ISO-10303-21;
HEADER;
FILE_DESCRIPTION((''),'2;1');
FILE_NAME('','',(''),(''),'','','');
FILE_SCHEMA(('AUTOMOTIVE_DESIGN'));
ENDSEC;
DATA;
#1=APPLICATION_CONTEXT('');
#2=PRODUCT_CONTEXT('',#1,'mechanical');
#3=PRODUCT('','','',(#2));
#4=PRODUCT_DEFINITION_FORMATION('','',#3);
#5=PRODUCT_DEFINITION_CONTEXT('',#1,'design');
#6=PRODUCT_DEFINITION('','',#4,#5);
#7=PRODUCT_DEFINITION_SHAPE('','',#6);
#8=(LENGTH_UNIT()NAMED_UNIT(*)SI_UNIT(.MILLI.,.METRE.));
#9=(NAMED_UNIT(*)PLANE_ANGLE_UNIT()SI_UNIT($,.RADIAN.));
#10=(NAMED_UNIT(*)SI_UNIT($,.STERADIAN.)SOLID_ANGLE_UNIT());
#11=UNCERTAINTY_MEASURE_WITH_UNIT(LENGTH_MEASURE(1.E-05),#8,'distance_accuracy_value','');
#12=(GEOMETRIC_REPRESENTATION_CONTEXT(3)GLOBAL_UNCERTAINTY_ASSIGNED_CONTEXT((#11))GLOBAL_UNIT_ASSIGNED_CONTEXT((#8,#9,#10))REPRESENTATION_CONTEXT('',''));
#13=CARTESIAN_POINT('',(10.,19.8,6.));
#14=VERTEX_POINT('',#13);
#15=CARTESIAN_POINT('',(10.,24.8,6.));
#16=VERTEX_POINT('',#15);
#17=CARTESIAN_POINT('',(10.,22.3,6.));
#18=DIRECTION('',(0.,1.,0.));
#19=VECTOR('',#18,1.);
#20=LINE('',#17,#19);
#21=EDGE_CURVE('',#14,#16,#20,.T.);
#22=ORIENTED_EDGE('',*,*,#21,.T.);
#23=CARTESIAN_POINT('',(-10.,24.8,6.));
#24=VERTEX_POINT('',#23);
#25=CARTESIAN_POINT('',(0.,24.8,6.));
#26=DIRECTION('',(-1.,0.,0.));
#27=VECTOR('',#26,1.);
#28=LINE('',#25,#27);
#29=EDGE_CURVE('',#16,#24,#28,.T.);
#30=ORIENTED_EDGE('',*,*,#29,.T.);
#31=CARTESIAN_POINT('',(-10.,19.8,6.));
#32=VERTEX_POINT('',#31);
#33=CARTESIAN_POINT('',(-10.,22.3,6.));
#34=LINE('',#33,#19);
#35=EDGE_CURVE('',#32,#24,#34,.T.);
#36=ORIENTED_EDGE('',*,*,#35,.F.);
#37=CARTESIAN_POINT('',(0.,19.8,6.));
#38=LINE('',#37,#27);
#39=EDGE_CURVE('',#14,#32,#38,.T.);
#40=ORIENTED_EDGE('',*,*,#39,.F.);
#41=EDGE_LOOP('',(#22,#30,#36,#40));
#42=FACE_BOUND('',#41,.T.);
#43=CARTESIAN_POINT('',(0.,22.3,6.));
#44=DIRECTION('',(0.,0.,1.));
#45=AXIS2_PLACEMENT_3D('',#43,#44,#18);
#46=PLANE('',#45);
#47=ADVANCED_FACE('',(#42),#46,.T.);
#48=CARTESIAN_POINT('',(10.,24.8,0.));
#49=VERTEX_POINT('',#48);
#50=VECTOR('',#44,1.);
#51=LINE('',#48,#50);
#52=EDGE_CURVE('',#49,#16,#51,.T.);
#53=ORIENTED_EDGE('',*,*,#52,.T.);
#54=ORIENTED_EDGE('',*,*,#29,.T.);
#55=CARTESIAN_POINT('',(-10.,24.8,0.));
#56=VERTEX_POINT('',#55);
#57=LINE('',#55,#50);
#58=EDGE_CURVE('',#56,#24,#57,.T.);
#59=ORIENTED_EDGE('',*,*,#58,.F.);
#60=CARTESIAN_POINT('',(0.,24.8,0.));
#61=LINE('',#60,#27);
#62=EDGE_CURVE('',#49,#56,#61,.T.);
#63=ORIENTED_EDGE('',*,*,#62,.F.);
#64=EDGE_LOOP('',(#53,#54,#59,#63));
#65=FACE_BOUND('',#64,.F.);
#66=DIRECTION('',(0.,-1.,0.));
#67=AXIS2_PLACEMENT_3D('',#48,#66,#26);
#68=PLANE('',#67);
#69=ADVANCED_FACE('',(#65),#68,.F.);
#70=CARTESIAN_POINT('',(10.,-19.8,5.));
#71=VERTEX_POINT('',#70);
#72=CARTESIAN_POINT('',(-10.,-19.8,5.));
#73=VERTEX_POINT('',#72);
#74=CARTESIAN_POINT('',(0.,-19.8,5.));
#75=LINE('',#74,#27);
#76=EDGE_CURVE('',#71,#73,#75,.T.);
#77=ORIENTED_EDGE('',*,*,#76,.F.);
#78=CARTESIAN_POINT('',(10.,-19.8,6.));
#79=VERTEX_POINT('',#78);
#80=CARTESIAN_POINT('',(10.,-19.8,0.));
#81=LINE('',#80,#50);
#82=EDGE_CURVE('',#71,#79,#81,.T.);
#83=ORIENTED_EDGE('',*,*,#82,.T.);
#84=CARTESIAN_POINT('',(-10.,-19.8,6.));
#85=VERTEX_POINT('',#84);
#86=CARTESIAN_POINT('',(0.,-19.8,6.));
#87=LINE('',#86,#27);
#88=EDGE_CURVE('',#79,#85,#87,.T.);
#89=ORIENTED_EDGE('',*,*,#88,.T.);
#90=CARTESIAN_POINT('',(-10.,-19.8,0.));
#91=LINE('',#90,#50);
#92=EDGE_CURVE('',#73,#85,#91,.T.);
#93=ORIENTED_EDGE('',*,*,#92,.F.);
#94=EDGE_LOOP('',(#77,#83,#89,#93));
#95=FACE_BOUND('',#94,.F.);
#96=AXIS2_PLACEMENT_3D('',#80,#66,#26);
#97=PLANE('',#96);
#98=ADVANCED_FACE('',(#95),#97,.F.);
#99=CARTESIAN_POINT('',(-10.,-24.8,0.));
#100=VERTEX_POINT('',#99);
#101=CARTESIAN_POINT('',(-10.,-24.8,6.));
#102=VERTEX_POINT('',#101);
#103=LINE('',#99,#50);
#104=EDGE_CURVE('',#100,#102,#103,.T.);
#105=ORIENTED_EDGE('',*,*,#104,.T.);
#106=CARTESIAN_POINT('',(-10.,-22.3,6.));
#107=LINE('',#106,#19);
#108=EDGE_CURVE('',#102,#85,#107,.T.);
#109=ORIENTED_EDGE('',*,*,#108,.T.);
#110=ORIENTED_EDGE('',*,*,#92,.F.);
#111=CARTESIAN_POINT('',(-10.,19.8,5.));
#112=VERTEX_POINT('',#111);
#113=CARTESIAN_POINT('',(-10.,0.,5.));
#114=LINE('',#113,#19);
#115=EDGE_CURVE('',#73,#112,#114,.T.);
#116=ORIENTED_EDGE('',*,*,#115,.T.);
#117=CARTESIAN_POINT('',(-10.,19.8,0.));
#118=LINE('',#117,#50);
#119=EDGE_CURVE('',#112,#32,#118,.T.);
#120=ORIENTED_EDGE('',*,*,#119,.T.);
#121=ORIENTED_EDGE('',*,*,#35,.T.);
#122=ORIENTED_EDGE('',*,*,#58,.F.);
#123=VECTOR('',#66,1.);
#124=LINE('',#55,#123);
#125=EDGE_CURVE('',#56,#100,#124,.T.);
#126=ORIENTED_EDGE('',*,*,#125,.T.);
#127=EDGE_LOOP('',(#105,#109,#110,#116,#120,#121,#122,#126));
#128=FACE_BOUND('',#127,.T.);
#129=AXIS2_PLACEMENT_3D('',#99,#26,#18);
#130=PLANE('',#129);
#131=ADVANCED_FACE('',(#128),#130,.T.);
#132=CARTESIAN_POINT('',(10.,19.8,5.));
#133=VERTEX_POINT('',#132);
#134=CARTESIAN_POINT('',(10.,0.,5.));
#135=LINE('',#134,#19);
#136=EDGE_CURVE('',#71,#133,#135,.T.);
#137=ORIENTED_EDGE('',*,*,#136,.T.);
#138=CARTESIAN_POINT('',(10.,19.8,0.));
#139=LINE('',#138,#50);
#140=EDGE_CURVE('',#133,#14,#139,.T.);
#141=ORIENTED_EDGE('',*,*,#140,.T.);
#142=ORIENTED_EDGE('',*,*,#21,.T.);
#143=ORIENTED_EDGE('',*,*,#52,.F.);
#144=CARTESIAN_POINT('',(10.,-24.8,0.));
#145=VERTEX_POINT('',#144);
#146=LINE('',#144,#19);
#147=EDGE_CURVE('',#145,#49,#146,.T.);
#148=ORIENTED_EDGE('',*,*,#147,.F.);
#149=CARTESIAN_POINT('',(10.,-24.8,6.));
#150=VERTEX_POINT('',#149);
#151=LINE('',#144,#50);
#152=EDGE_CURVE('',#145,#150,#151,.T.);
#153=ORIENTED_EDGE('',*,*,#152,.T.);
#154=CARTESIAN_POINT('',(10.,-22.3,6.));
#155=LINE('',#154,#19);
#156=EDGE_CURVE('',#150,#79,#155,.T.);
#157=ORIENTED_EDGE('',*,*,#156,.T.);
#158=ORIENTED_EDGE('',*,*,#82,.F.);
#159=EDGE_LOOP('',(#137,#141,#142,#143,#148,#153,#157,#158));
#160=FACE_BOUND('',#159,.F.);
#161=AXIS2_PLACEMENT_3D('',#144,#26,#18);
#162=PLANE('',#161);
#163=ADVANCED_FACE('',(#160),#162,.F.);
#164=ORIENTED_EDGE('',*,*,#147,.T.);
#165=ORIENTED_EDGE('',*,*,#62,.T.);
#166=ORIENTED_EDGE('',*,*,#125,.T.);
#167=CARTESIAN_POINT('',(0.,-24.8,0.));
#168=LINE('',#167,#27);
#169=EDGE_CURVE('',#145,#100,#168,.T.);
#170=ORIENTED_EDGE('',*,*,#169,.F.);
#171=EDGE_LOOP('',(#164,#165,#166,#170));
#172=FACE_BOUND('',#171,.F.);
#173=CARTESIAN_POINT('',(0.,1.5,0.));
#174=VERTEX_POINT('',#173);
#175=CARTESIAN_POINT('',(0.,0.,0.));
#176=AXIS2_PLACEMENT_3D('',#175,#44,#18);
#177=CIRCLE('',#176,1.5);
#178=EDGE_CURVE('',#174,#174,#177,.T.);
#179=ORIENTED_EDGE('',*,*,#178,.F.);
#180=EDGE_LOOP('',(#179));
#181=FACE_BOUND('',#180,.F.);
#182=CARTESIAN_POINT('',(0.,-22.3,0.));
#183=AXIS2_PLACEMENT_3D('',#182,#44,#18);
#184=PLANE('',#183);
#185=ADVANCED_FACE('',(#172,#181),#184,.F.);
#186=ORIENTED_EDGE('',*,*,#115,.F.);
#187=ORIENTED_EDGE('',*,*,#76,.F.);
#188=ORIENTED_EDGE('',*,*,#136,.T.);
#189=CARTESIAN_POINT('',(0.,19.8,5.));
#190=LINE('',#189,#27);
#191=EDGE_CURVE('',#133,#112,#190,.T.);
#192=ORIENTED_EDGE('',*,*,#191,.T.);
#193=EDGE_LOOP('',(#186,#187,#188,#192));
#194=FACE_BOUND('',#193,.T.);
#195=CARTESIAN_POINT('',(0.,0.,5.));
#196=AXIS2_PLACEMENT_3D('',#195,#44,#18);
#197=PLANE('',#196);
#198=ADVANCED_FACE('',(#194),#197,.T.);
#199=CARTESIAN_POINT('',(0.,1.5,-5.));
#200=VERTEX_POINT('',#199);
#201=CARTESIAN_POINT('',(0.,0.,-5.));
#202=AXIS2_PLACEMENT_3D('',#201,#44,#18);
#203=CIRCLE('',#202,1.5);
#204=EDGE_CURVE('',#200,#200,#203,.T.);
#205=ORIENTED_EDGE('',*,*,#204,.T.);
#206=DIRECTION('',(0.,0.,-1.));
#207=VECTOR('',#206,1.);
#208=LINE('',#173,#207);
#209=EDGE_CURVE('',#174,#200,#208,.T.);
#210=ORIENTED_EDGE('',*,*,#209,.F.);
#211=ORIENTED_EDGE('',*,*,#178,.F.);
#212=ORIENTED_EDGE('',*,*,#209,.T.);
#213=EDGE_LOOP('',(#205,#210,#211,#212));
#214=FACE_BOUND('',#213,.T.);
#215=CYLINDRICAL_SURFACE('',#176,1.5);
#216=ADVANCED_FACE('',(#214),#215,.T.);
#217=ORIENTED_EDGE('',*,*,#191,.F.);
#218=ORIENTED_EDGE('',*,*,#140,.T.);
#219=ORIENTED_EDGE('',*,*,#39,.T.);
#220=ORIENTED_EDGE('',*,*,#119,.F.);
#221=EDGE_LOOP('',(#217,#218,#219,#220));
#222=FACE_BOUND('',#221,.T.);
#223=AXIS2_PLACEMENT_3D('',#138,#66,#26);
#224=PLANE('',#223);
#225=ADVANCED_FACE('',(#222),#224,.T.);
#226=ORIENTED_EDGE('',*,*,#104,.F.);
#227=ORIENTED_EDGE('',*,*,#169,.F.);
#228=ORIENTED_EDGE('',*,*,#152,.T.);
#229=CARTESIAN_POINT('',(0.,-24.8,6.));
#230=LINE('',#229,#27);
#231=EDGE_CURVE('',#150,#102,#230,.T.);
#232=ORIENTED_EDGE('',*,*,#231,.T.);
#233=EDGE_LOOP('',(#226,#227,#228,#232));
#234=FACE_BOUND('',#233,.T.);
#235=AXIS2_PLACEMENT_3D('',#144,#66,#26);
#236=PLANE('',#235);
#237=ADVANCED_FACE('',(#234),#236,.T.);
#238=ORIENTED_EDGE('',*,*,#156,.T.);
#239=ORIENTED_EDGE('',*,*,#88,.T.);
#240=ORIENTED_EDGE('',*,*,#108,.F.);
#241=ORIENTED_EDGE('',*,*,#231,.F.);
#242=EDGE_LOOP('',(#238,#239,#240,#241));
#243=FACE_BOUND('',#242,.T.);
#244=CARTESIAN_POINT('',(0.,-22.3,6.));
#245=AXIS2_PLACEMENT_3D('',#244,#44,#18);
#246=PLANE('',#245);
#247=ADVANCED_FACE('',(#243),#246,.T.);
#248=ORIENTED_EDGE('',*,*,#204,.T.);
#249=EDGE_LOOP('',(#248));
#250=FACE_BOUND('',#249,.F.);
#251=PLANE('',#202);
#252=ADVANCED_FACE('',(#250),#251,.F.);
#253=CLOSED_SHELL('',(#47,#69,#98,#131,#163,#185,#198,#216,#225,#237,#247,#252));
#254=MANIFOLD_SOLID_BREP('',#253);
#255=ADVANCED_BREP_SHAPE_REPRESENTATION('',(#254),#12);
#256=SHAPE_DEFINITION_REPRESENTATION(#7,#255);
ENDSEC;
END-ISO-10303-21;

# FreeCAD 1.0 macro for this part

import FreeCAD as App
import Part
import Sketcher

V = App.Vector
Q = App.Units.Quantity

doc = App.newDocument("Part")
body = doc.addObject("PartDesign::Body", "Body")

# Sketch on XY plane
sketch1 = doc.addObject("Sketcher::SketchObject", "Sketch")
body.addObject(sketch1)
sketch1.AttachmentSupport = (doc.XY_Plane, [""])
sketch1.MapMode = "FlatFace"
sketch1.addGeometry(Part.Circle(V(0, 0, 0), V(0, 0, 1), 1.5), False)
sketch1.addConstraint([
    Sketcher.Constraint("Coincident", 0, 3, -1, 1),
    Sketcher.Constraint("Diameter", 0, Q("3 mm")),
])
pad1 = doc.addObject("PartDesign::Pad", "Pad")
body.addObject(pad1)
pad1.Profile = sketch1
pad1.Length = 5
pad1.Reversed = True

# Sketch on XY plane
sketch2 = doc.addObject("Sketcher::SketchObject", "Sketch001")
body.addObject(sketch2)
sketch2.AttachmentSupport = (doc.XY_Plane, [""])
sketch2.MapMode = "FlatFace"
sketch2.addGeometry([
    Part.LineSegment(V(-19.8, 10, 0), V(-19.8, -10, 0)),
    Part.LineSegment(V(-19.8, -10, 0), V(19.8, -10, 0)),
    Part.LineSegment(V(19.8, -10, 0), V(19.8, 10, 0)),
    Part.LineSegment(V(19.8, 10, 0), V(-19.8, 10, 0)),
], False)
sketch2.addConstraint([
    Sketcher.Constraint("Coincident", 0, 2, 1, 1),
    Sketcher.Constraint("Coincident", 1, 2, 2, 1),
    Sketcher.Constraint("Coincident", 2, 2, 3, 1),
    Sketcher.Constraint("Coincident", 3, 2, 0, 1),
    Sketcher.Constraint("Vertical", 0),
    Sketcher.Constraint("Horizontal", 1),
    Sketcher.Constraint("Vertical", 2),
    Sketcher.Constraint("Horizontal", 3),
    Sketcher.Constraint("Symmetric", 0, 2, 2, 2, -1, 1),
    Sketcher.Constraint("DistanceY", 0, 2, 0, 1, Q("20 mm")),
    Sketcher.Constraint("DistanceX", 1, 1, 1, 2, Q("39.6 mm")),
])
pad2 = doc.addObject("PartDesign::Pad", "Pad001")
body.addObject(pad2)
pad2.Profile = sketch2
pad2.Length = 5

# Sketch on XY plane
sketch3 = doc.addObject("Sketcher::SketchObject", "Sketch002")
body.addObject(sketch3)
sketch3.AttachmentSupport = (doc.XY_Plane, [""])
sketch3.MapMode = "FlatFace"
sketch3.addGeometry([
    Part.LineSegment(V(-24.8, 10, 0), V(-24.8, -10, 0)),  # 0
    Part.LineSegment(V(-24.8, -10, 0), V(-19.8, -10, 0)),  # 1
    Part.LineSegment(V(-19.8, -10, 0), V(-19.8, 10, 0)),  # 2
    Part.LineSegment(V(-19.8, 10, 0), V(-24.8, 10, 0)),  # 3
    Part.LineSegment(V(19.8, 10, 0), V(19.8, -10, 0)),  # 4
    Part.LineSegment(V(19.8, -10, 0), V(24.8, -10, 0)),  # 5
    Part.LineSegment(V(24.8, -10, 0), V(24.8, 10, 0)),  # 6
    Part.LineSegment(V(24.8, 10, 0), V(19.8, 10, 0)),  # 7
], False)
sketch3.addConstraint([
    Sketcher.Constraint("Coincident", 0, 2, 1, 1),
    Sketcher.Constraint("Coincident", 1, 2, 2, 1),
    Sketcher.Constraint("Coincident", 2, 2, 3, 1),
    Sketcher.Constraint("Coincident", 3, 2, 0, 1),
    Sketcher.Constraint("Coincident", 4, 2, 5, 1),
    Sketcher.Constraint("Coincident", 5, 2, 6, 1),
    Sketcher.Constraint("Coincident", 6, 2, 7, 1),
    Sketcher.Constraint("Coincident", 7, 2, 4, 1),
    Sketcher.Constraint("Vertical", 0),
    Sketcher.Constraint("Horizontal", 1),
    Sketcher.Constraint("Vertical", 2),
    Sketcher.Constraint("Horizontal", 3),
    Sketcher.Constraint("Vertical", 4),
    Sketcher.Constraint("Horizontal", 5),
    Sketcher.Constraint("Vertical", 6),
    Sketcher.Constraint("Horizontal", 7),
    Sketcher.Constraint("Symmetric", 2, 2, 4, 2, -1, 1),
    Sketcher.Constraint("Symmetric", 0, 2, 6, 2, -1, 1),
    Sketcher.Constraint("Horizontal", 1, 2, 4, 2),
    Sketcher.Constraint("DistanceX", 1, 1, 1, 2, Q("5 mm")),
    Sketcher.Constraint("DistanceY", 0, 2, 0, 1, Q("20 mm")),
    Sketcher.Constraint("DistanceX", 0, 2, -1, 1, Q("24.8 mm")),
])
pad3 = doc.addObject("PartDesign::Pad", "Pad002")
body.addObject(pad3)
pad3.Profile = sketch3
pad3.Length = 6
body2 = doc.addObject("PartDesign::Body", "Body001")
doc.recompute()

body.Placement = App.Placement(V(0, 0, 0), App.Rotation(V(0, 0, 1), 90))
boolean = doc.addObject("PartDesign::Boolean", "Boolean")
body2.addObject(boolean)
boolean.Type = "Fuse"
boolean.addObjects([body])

doc.recompute()
